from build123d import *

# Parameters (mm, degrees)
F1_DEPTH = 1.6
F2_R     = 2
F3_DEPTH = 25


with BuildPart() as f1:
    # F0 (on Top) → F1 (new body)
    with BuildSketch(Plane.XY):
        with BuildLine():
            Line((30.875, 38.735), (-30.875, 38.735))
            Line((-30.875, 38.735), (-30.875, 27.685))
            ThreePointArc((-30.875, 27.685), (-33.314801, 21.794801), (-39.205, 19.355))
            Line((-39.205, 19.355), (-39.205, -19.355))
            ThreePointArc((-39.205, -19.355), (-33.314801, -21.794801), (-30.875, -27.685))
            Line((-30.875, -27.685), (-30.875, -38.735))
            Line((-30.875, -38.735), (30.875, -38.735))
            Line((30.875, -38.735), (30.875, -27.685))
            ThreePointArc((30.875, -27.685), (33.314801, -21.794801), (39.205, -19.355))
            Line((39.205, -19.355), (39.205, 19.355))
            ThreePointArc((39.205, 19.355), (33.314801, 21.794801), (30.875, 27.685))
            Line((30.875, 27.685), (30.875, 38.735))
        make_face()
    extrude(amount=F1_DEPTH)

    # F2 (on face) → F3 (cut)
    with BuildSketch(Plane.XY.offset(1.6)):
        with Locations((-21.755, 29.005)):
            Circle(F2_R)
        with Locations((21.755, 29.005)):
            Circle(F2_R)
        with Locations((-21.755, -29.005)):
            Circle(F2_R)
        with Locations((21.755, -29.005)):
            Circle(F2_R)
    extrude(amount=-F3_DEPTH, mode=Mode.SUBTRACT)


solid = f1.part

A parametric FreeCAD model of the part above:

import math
import FreeCAD as App
import Part
import Sketcher
Q = App.Units.Quantity

doc = App.newDocument("Part")
params = doc.addObject("Spreadsheet::Sheet", "Params")
for row, (alias, value) in enumerate([
    ("sketch1_radius", "8.330002 mm"),
    ("sketch1_width", "61.75 mm"),
    ("sketch1_height", "11.05 mm"),
    ("sketch1_height2", "38.71 mm"),
    ("pad1_length", "1.6 mm"),
    ("sketch2_diameter", "4 mm"),
    ("pocket1_length", "25 mm"),
], start=1):
    params.set(f"A{row}", alias)
    params.set(f"B{row}", "=" + value)
    params.setAlias(f"B{row}", alias)

body = doc.addObject("PartDesign::Body", "Body")

sketch1 = body.newObject("Sketcher::SketchObject", "Sketch")
sketch1.AttachmentSupport = (doc.getObject("XY_Plane"), [""])
sketch1.MapMode = "FlatFace"
sketch1.addGeometry([
    Part.LineSegment(App.Vector(31, 39, 0), App.Vector(-31, 39, 0)),
    Part.LineSegment(App.Vector(-31, 39, 0), App.Vector(-31, 28, 0)),
    Part.ArcOfCircle(Part.Circle(App.Vector(-39, 28, 0), App.Vector(0, 0, 1), 8), math.radians(-90), math.radians(0)),
    Part.LineSegment(App.Vector(-39, 19, 0), App.Vector(-39, -19, 0)),
    Part.ArcOfCircle(Part.Circle(App.Vector(-39, -28, 0), App.Vector(0, 0, 1), 8), math.radians(0), math.radians(90)),
    Part.LineSegment(App.Vector(-31, -28, 0), App.Vector(-31, -39, 0)),
    Part.LineSegment(App.Vector(-31, -39, 0), App.Vector(31, -39, 0)),
    Part.LineSegment(App.Vector(31, -39, 0), App.Vector(31, -28, 0)),
    Part.ArcOfCircle(Part.Circle(App.Vector(39, -28, 0), App.Vector(0, 0, 1), 8), math.radians(90), math.radians(180)),
    Part.LineSegment(App.Vector(39, -19, 0), App.Vector(39, 19, 0)),
    Part.ArcOfCircle(Part.Circle(App.Vector(39, 28, 0), App.Vector(0, 0, 1), 8), math.radians(-180), math.radians(-90)),
    Part.LineSegment(App.Vector(31, 28, 0), App.Vector(31, 39, 0)),
], False)
sketch1.addConstraint([
    Sketcher.Constraint("Coincident", 0, 2, 1, 1),
    Sketcher.Constraint("Tangent", 1, 2, 2, 2),
    Sketcher.Constraint("Coincident", 2, 1, 3, 1),
    Sketcher.Constraint("Coincident", 3, 2, 4, 2),
    Sketcher.Constraint("Tangent", 4, 1, 5, 1),
    Sketcher.Constraint("Coincident", 5, 2, 6, 1),
    Sketcher.Constraint("Coincident", 6, 2, 7, 1),
    Sketcher.Constraint("Tangent", 7, 2, 8, 2),
    Sketcher.Constraint("Coincident", 8, 1, 9, 1),
    Sketcher.Constraint("Coincident", 9, 2, 10, 2),
    Sketcher.Constraint("Tangent", 10, 1, 11, 1),
    Sketcher.Constraint("Coincident", 11, 2, 0, 1),
    Sketcher.Constraint("Horizontal", 0),
    Sketcher.Constraint("Vertical", 1),
    Sketcher.Constraint("Vertical", 3),
    Sketcher.Constraint("Vertical", 5),
    Sketcher.Constraint("Horizontal", 6),
    Sketcher.Constraint("Vertical", 7),
    Sketcher.Constraint("Vertical", 9),
    Sketcher.Constraint("Vertical", 11),
    Sketcher.Constraint("Equal", 2, 4),
    Sketcher.Constraint("Equal", 4, 8),
    Sketcher.Constraint("Equal", 8, 10),
    Sketcher.Constraint("Symmetric", 2, 3, 8, 3, -1, 1),
    Sketcher.Constraint("Symmetric", 4, 3, 10, 3, -1, 1),
    Sketcher.Constraint("Symmetric", 4, 3, 8, 3, -2),
    Sketcher.Constraint("Vertical", 4, 3, 2, 1),
    Sketcher.Constraint("Vertical", 10, 3, 8, 1),
    Sketcher.Constraint("Equal", 1, 5),
    Sketcher.Constraint("Radius", 2, Q("8.330002 mm")),
    Sketcher.Constraint("DistanceX", 0, 2, 0, 1, Q("61.75 mm")),
    Sketcher.Constraint("DistanceY", 1, 2, 1, 1, Q("11.05 mm")),
    Sketcher.Constraint("DistanceY", 3, 2, 3, 1, Q("38.71 mm")),
])
sketch1.setExpression("Constraints[29]", "Params.sketch1_radius")
sketch1.setExpression("Constraints[30]", "Params.sketch1_width")
sketch1.setExpression("Constraints[31]", "Params.sketch1_height")
sketch1.setExpression("Constraints[32]", "Params.sketch1_height2")
pad1 = body.newObject("PartDesign::Pad", "Pad")
pad1.Profile = sketch1
pad1.setExpression("Length", "Params.pad1_length")

sketch2 = body.newObject("Sketcher::SketchObject", "Sketch001")
sketch2.AttachmentSupport = (doc.getObject("XY_Plane"), [""])
sketch2.MapMode = "FlatFace"
sketch2.AttachmentOffset = App.Placement(App.Vector(0, 0, 1.6), App.Rotation())
sketch2.addGeometry([
    Part.Circle(App.Vector(-21.8, 29, 0), App.Vector(0, 0, 1), 2),
    Part.Circle(App.Vector(21.8, 29, 0), App.Vector(0, 0, 1), 2),
    Part.Circle(App.Vector(-21.8, -29, 0), App.Vector(0, 0, 1), 2),
    Part.Circle(App.Vector(21.8, -29, 0), App.Vector(0, 0, 1), 2),
], False)
sketch2.addConstraint([
    Sketcher.Constraint("Equal", 0, 1),
    Sketcher.Constraint("Equal", 1, 2),
    Sketcher.Constraint("Equal", 2, 3),
    Sketcher.Constraint("Symmetric", 1, 3, 2, 3, -1, 1),
    Sketcher.Constraint("Symmetric", 0, 3, 3, 3, -1, 1),
    Sketcher.Constraint("Symmetric", 0, 3, 1, 3, -2),
    Sketcher.Constraint("Diameter", 0, Q("4 mm")),
    Sketcher.Constraint("DistanceX", 0, 3, 1, 3, Q("43.51 mm")),
    Sketcher.Constraint("DistanceY", 2, 3, 0, 3, Q("58.01 mm")),
])
sketch2.setExpression("Constraints[6]", "Params.sketch2_diameter")
pocket1 = body.newObject("PartDesign::Pocket", "Pocket")
pocket1.Profile = sketch2
pocket1.setExpression("Length", "Params.pocket1_length")

doc.recompute()
